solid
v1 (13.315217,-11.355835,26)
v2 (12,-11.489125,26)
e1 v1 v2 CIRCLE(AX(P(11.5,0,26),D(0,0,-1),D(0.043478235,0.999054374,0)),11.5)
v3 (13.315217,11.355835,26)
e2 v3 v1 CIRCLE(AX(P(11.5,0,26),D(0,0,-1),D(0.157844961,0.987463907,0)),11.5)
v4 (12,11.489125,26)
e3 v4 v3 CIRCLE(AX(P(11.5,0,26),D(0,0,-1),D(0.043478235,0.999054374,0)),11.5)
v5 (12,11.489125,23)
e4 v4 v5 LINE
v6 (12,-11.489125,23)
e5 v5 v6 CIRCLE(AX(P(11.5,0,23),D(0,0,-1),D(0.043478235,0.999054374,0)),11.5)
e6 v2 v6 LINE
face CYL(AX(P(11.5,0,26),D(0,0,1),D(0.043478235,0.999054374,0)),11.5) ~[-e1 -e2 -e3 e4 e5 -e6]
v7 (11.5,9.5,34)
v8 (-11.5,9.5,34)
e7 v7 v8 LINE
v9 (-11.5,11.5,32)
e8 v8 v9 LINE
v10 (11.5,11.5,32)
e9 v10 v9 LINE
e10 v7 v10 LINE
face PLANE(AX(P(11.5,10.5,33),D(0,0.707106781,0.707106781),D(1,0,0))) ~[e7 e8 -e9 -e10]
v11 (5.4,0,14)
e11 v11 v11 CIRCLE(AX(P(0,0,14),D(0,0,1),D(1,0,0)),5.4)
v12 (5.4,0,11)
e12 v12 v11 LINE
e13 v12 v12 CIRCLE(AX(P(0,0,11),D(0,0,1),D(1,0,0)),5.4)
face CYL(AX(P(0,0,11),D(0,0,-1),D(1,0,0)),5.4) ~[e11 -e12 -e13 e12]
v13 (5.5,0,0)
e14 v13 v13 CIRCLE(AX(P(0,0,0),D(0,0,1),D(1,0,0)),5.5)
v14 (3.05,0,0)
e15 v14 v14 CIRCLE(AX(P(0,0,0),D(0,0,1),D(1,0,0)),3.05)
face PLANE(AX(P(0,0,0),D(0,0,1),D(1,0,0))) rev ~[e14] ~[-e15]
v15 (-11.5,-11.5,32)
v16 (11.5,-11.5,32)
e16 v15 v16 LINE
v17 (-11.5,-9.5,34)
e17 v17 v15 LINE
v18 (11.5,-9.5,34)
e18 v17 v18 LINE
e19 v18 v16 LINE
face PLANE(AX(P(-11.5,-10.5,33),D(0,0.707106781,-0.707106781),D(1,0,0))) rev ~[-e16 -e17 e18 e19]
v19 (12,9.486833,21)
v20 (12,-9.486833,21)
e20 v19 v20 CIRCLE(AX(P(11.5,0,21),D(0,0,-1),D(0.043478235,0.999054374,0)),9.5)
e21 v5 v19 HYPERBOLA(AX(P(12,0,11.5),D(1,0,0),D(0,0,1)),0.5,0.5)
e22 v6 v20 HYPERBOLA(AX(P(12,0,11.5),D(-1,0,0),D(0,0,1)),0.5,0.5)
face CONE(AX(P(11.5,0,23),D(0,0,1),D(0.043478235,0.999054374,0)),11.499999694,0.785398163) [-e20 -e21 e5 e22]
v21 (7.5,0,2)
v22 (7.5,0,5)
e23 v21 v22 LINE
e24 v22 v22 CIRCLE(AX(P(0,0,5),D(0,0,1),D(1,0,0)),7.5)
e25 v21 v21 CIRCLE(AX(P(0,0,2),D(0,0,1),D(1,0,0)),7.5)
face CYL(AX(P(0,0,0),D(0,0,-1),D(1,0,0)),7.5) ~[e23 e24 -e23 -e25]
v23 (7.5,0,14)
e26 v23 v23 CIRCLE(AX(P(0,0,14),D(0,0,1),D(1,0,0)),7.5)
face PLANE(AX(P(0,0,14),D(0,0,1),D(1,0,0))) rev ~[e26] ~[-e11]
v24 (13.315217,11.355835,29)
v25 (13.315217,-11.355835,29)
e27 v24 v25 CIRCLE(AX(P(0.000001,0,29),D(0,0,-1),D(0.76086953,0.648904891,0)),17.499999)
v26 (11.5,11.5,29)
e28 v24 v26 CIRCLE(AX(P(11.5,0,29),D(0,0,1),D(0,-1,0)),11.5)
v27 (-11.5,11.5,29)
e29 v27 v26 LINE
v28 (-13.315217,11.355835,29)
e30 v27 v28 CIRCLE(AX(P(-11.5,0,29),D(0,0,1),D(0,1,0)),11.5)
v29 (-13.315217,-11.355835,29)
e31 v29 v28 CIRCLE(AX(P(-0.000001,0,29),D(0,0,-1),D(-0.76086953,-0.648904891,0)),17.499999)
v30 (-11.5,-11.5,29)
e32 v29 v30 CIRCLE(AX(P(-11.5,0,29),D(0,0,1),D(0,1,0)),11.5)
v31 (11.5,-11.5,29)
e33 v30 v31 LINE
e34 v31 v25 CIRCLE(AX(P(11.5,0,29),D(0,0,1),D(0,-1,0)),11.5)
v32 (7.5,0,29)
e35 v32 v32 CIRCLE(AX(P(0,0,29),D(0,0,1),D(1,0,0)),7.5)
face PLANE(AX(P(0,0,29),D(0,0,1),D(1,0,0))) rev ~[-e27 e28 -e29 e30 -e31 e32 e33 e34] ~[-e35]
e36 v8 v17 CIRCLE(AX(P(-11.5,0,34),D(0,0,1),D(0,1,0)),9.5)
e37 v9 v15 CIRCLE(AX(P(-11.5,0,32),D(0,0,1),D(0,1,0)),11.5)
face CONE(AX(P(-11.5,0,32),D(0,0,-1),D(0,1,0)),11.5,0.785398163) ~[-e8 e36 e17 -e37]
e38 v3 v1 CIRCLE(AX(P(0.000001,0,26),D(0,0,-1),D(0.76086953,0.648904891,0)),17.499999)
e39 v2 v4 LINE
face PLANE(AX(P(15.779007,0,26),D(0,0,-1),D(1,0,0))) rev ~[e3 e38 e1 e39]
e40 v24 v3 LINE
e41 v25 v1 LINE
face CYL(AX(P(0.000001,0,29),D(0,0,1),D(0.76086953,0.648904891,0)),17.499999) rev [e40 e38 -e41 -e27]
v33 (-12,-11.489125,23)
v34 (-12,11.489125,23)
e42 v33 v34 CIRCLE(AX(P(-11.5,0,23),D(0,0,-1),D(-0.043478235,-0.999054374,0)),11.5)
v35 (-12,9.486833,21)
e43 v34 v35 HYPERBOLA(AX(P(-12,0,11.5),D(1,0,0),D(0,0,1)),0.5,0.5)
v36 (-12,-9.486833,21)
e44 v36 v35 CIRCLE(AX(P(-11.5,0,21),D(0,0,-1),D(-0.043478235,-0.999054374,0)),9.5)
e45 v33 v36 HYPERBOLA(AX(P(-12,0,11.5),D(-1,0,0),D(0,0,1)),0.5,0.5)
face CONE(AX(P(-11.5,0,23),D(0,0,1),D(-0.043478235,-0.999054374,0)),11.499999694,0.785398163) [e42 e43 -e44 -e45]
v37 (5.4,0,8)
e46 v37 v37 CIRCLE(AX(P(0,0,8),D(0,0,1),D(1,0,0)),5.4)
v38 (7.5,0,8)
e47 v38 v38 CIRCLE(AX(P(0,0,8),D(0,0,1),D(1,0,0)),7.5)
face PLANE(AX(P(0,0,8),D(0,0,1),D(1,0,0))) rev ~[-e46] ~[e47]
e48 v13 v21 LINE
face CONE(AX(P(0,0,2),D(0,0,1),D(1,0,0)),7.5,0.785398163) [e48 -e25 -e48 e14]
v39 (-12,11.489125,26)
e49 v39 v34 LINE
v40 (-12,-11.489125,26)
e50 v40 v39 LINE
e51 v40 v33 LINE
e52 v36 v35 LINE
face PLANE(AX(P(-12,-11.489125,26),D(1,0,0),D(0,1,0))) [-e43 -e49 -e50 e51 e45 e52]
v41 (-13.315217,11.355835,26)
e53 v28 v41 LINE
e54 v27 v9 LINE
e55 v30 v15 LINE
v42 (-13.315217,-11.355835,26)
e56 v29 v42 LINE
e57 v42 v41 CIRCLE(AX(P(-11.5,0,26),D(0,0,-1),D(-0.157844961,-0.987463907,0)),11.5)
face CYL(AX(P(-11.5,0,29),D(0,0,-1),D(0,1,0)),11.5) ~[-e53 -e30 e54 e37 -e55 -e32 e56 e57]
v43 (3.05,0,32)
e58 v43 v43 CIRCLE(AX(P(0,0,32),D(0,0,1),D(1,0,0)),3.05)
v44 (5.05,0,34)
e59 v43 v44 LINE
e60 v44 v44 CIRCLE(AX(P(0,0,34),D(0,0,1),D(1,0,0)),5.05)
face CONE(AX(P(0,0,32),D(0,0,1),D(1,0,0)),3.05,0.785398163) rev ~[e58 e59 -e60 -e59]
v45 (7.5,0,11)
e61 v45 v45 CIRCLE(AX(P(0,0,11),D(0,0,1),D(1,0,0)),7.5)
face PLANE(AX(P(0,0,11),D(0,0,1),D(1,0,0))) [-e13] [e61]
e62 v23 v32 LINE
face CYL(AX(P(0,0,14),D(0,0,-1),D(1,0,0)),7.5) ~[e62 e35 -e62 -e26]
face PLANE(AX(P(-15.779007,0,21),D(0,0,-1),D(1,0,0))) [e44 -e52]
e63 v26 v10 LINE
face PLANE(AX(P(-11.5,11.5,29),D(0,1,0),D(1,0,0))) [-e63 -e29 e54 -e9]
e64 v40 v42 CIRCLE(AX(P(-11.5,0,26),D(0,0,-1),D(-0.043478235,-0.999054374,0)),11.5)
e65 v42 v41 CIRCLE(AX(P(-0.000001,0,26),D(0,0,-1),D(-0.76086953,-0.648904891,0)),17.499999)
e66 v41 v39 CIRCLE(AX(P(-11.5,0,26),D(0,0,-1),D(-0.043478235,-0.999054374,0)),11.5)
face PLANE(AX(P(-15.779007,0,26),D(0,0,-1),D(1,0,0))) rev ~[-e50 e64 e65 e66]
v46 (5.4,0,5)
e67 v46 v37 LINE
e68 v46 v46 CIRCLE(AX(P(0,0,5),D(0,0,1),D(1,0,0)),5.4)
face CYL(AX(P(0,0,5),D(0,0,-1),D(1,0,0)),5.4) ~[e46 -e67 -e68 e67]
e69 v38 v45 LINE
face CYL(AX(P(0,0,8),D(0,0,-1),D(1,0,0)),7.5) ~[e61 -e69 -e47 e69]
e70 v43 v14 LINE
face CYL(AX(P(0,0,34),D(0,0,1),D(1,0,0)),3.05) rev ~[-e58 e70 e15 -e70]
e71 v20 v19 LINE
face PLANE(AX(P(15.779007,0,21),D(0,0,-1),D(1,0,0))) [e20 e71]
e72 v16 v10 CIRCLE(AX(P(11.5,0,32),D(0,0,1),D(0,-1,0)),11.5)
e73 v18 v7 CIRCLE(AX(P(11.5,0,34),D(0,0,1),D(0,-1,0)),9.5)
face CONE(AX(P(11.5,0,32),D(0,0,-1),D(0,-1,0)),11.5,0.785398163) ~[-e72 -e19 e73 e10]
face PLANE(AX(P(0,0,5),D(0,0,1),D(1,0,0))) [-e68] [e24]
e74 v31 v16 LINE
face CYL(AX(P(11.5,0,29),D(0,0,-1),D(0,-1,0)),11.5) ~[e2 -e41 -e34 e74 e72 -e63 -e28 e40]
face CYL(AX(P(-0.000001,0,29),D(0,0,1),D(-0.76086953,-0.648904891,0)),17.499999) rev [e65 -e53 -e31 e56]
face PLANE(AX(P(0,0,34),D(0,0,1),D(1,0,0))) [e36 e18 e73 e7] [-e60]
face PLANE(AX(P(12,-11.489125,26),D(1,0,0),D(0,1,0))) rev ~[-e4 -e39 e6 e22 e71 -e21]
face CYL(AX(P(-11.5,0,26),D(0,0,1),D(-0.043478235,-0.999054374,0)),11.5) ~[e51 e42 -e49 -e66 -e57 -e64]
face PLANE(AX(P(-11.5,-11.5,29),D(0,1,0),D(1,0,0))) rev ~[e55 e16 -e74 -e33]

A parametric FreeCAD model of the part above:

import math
import FreeCAD as App
import Part
import Sketcher

V = App.Vector


def edges_at(feature, points):
    """Names of the edges that pass closest to the given points."""
    edges = feature.Shape.Edges
    near = lambda p: min(range(len(edges)), key=lambda i: edges[i].distToShape(Part.Vertex(*p))[0])
    return sorted({f"Edge{near(p) + 1}" for p in points})

doc = App.newDocument("Part")
body = doc.addObject("PartDesign::Body", "Body")

# Sketch on XY plane
sketch1 = body.newObject("Sketcher::SketchObject", "Sketch")
sketch1.AttachmentSupport = (doc.getObject("XY_Plane"), [""])
sketch1.MapMode = "FlatFace"
sketch1.addGeometry(Part.Circle(V(0, 0, 0), V(0, 0, 1), 8), False)
sketch1.addConstraint([
    Sketcher.Constraint("Coincident", 0, 3, -1, 1),
    Sketcher.Constraint("Diameter", 0, 15.0),
])
pad1 = body.newObject("PartDesign::Pad", "Pad")
pad1.Profile = sketch1
pad1.Length = 5

# Sketch on XY plane
sketch2 = body.newObject("Sketcher::SketchObject", "Sketch001")
sketch2.AttachmentSupport = (doc.getObject("XY_Plane"), [""])
sketch2.MapMode = "FlatFace"
sketch2.AttachmentOffset = App.Placement(V(0, 0, 5), App.Rotation())
sketch2.addGeometry(Part.Circle(V(0, 0, 0), V(0, 0, 1), 5), False)
sketch2.addConstraint([
    Sketcher.Constraint("Coincident", 0, 3, -1, 1),
    Sketcher.Constraint("Diameter", 0, 10.8),
])
pad2 = body.newObject("PartDesign::Pad", "Pad001")
pad2.Profile = sketch2
pad2.Length = 3

# Sketch on XY plane
sketch3 = body.newObject("Sketcher::SketchObject", "Sketch002")
sketch3.AttachmentSupport = (doc.getObject("XY_Plane"), [""])
sketch3.MapMode = "FlatFace"
sketch3.AttachmentOffset = App.Placement(V(0, 0, 8), App.Rotation())
sketch3.addGeometry(Part.Circle(V(0, 0, 0), V(0, 0, 1), 8), False)
sketch3.addConstraint([
    Sketcher.Constraint("Coincident", 0, 3, -1, 1),
    Sketcher.Constraint("Diameter", 0, 15.0),
])
pad3 = body.newObject("PartDesign::Pad", "Pad002")
pad3.Profile = sketch3
pad3.Length = 3

# Sketch on XY plane
sketch4 = body.newObject("Sketcher::SketchObject", "Sketch003")
sketch4.AttachmentSupport = (doc.getObject("XY_Plane"), [""])
sketch4.MapMode = "FlatFace"
sketch4.AttachmentOffset = App.Placement(V(0, 0, 11), App.Rotation())
sketch4.addGeometry(Part.Circle(V(0, 0, 0), V(0, 0, 1), 5), False)
sketch4.addConstraint([
    Sketcher.Constraint("Coincident", 0, 3, -1, 1),
    Sketcher.Constraint("Diameter", 0, 10.8),
])
pad4 = body.newObject("PartDesign::Pad", "Pad003")
pad4.Profile = sketch4
pad4.Length = 3

# Sketch on XY plane
sketch5 = body.newObject("Sketcher::SketchObject", "Sketch004")
sketch5.AttachmentSupport = (doc.getObject("XY_Plane"), [""])
sketch5.MapMode = "FlatFace"
sketch5.AttachmentOffset = App.Placement(V(0, 0, 14), App.Rotation())
sketch5.addGeometry(Part.Circle(V(0, 0, 0), V(0, 0, 1), 8), False)
sketch5.addConstraint([
    Sketcher.Constraint("Coincident", 0, 3, -1, 1),
    Sketcher.Constraint("Diameter", 0, 15.0),
])
pad5 = body.newObject("PartDesign::Pad", "Pad004")
pad5.Profile = sketch5
pad5.Length = 15

# Sketch on XY plane
sketch6 = body.newObject("Sketcher::SketchObject", "Sketch005")
sketch6.AttachmentSupport = (doc.getObject("XY_Plane"), [""])
sketch6.MapMode = "FlatFace"
sketch6.AttachmentOffset = App.Placement(V(0, 0, 29), App.Rotation())
sketch6.addGeometry([
    Part.ArcOfCircle(Part.Circle(V(-12, 0, 0), V(0, 0, 1), 12), math.radians(90), math.radians(270)),
    Part.LineSegment(V(-12, -12, 0), V(12, -12, 0)),
    Part.ArcOfCircle(Part.Circle(V(12, 0, 0), V(0, 0, 1), 12), math.radians(-90), math.radians(90)),
    Part.LineSegment(V(12, 12, 0), V(-12, 12, 0)),
], False)
sketch6.addConstraint([
    Sketcher.Constraint("Tangent", 0, 2, 1, 1),
    Sketcher.Constraint("Tangent", 1, 2, 2, 1),
    Sketcher.Constraint("Tangent", 2, 2, 3, 1),
    Sketcher.Constraint("Tangent", 3, 2, 0, 1),
    Sketcher.Constraint("Horizontal", 1),
    Sketcher.Constraint("Horizontal", 3),
    Sketcher.Constraint("Symmetric", 0, 3, 2, 3, -1, 1),
    Sketcher.Constraint("Radius", 0, 11.5),
    Sketcher.Constraint("DistanceX", 1, 1, 1, 2, 23.0),
])
pad6 = body.newObject("PartDesign::Pad", "Pad005")
pad6.Profile = sketch6
pad6.Length = 5

# Sketch on XY plane
sketch7 = body.newObject("Sketcher::SketchObject", "Sketch006")
sketch7.AttachmentSupport = (doc.getObject("XY_Plane"), [""])
sketch7.MapMode = "FlatFace"
sketch7.AttachmentOffset = App.Placement(V(0, 0, 29), App.Rotation())
sketch7.addGeometry([
    Part.ArcOfCircle(Part.Circle(V(11, 0, 0), V(0, 0, 1), 12), math.radians(-81), math.radians(81)),
    Part.ArcOfCircle(Part.Circle(V(0, 0, 0), V(0, 0, 1), 17), math.radians(-40), math.radians(40)),
    Part.ArcOfCircle(Part.Circle(V(-11, 0, 0), V(0, 0, 1), 12), math.radians(99), math.radians(261)),
    Part.ArcOfCircle(Part.Circle(V(0, 0, 0), V(0, 0, 1), 17), math.radians(140), math.radians(220)),
], False)
sketch7.addConstraint([
    Sketcher.Constraint("Coincident", 0, 1, 1, 1),
    Sketcher.Constraint("Coincident", 1, 2, 0, 2),
    Sketcher.Constraint("Coincident", 2, 1, 3, 1),
    Sketcher.Constraint("Coincident", 3, 2, 2, 2),
    Sketcher.Constraint("Coincident", 1, 3, -1, 1),
    Sketcher.Constraint("Coincident", 3, 3, -1, 1),
    Sketcher.Constraint("Equal", 0, 2),
    Sketcher.Constraint("Equal", 1, 3),
    Sketcher.Constraint("Symmetric", 0, 3, 2, 3, -1, 1),
    Sketcher.Constraint("PointOnObject", 0, 3, -1),
    Sketcher.Constraint("Radius", 0, 11.5),
    Sketcher.Constraint("Radius", 1, 17.499999),
    Sketcher.Constraint("DistanceX", 2, 3, 0, 3, 23.0),
])
pad7 = body.newObject("PartDesign::Pad", "Pad006")
pad7.Profile = sketch7
pad7.Length = 3
pad7.Reversed = True

# Sketch on XY plane
sketch8 = body.newObject("Sketcher::SketchObject", "Sketch007")
sketch8.AttachmentSupport = (doc.getObject("XY_Plane"), [""])
sketch8.MapMode = "FlatFace"
sketch8.AttachmentOffset = App.Placement(V(0, 0, 26), App.Rotation())
sketch8.addGeometry([
    Part.ArcOfCircle(Part.Circle(V(-12, 0, 0), V(0, 0, 1), 11), math.radians(92), math.radians(268)),
    Part.LineSegment(V(-12, 11, 0), V(-12, -11, 0)),
    Part.LineSegment(V(12, -11, 0), V(12, 11, 0)),
    Part.ArcOfCircle(Part.Circle(V(12, 0, 0), V(0, 0, 1), 11), math.radians(-88), math.radians(88)),
], False)
sketch8.addConstraint([
    Sketcher.Constraint("Coincident", 0, 1, 1, 1),
    Sketcher.Constraint("Coincident", 1, 2, 0, 2),
    Sketcher.Constraint("Coincident", 2, 1, 3, 1),
    Sketcher.Constraint("Coincident", 3, 2, 2, 2),
    Sketcher.Constraint("Vertical", 1),
    Sketcher.Constraint("Vertical", 2),
    Sketcher.Constraint("Equal", 0, 3),
    Sketcher.Constraint("Symmetric", 0, 3, 3, 3, -1, 1),
    Sketcher.Constraint("Symmetric", 1, 2, 2, 1, -2),
    Sketcher.Constraint("Radius", 0, 11.5),
    Sketcher.Constraint("DistanceX", 0, 1, -1, 1, 12.0),
    Sketcher.Constraint("DistanceX", 0, 3, 3, 3, 23.000001),
])
pad8 = body.newObject("PartDesign::Pad", "Pad007")
pad8.Profile = sketch8
pad8.Length = 5
pad8.Reversed = True

# Sketch on XY plane
sketch9 = body.newObject("Sketcher::SketchObject", "Sketch008")
sketch9.AttachmentSupport = (doc.getObject("XY_Plane"), [""])
sketch9.MapMode = "FlatFace"
sketch9.AttachmentOffset = App.Placement(V(0, 0, 34), App.Rotation())
sketch9.addGeometry(Part.Circle(V(0, 0, 0), V(0, 0, 1), 3), False)
sketch9.addConstraint([
    Sketcher.Constraint("Coincident", 0, 3, -1, 1),
    Sketcher.Constraint("Diameter", 0, 6.1),
])
pocket1 = body.newObject("PartDesign::Pocket", "Pocket")
pocket1.Profile = sketch9
pocket1.Type = "ThroughAll"
doc.recompute()

chamfer = body.newObject("PartDesign::Chamfer", "Chamfer")
chamfer.Base = (pocket1, edges_at(pocket1, [(23, 0, 21)]))
chamfer.Size = 2
doc.recompute()

chamfer2 = body.newObject("PartDesign::Chamfer", "Chamfer001")
chamfer2.Base = (chamfer, edges_at(chamfer, [(-23, 0, 21)]))
chamfer2.Size = 2
doc.recompute()

chamfer3 = body.newObject("PartDesign::Chamfer", "Chamfer002")
chamfer3.Base = (chamfer2, edges_at(chamfer2, [(-7.5, 0, 0)]))
chamfer3.Size = 2
doc.recompute()

chamfer4 = body.newObject("PartDesign::Chamfer", "Chamfer003")
chamfer4.Base = (chamfer3, edges_at(chamfer3, [
    (-23, 0, 34),
    (0, 11.5, 34),
    (0, -11.5, 34),
    (23, 0, 34),
    (-3.05, 0, 34),
]))
chamfer4.Size = 2

doc.recompute()
